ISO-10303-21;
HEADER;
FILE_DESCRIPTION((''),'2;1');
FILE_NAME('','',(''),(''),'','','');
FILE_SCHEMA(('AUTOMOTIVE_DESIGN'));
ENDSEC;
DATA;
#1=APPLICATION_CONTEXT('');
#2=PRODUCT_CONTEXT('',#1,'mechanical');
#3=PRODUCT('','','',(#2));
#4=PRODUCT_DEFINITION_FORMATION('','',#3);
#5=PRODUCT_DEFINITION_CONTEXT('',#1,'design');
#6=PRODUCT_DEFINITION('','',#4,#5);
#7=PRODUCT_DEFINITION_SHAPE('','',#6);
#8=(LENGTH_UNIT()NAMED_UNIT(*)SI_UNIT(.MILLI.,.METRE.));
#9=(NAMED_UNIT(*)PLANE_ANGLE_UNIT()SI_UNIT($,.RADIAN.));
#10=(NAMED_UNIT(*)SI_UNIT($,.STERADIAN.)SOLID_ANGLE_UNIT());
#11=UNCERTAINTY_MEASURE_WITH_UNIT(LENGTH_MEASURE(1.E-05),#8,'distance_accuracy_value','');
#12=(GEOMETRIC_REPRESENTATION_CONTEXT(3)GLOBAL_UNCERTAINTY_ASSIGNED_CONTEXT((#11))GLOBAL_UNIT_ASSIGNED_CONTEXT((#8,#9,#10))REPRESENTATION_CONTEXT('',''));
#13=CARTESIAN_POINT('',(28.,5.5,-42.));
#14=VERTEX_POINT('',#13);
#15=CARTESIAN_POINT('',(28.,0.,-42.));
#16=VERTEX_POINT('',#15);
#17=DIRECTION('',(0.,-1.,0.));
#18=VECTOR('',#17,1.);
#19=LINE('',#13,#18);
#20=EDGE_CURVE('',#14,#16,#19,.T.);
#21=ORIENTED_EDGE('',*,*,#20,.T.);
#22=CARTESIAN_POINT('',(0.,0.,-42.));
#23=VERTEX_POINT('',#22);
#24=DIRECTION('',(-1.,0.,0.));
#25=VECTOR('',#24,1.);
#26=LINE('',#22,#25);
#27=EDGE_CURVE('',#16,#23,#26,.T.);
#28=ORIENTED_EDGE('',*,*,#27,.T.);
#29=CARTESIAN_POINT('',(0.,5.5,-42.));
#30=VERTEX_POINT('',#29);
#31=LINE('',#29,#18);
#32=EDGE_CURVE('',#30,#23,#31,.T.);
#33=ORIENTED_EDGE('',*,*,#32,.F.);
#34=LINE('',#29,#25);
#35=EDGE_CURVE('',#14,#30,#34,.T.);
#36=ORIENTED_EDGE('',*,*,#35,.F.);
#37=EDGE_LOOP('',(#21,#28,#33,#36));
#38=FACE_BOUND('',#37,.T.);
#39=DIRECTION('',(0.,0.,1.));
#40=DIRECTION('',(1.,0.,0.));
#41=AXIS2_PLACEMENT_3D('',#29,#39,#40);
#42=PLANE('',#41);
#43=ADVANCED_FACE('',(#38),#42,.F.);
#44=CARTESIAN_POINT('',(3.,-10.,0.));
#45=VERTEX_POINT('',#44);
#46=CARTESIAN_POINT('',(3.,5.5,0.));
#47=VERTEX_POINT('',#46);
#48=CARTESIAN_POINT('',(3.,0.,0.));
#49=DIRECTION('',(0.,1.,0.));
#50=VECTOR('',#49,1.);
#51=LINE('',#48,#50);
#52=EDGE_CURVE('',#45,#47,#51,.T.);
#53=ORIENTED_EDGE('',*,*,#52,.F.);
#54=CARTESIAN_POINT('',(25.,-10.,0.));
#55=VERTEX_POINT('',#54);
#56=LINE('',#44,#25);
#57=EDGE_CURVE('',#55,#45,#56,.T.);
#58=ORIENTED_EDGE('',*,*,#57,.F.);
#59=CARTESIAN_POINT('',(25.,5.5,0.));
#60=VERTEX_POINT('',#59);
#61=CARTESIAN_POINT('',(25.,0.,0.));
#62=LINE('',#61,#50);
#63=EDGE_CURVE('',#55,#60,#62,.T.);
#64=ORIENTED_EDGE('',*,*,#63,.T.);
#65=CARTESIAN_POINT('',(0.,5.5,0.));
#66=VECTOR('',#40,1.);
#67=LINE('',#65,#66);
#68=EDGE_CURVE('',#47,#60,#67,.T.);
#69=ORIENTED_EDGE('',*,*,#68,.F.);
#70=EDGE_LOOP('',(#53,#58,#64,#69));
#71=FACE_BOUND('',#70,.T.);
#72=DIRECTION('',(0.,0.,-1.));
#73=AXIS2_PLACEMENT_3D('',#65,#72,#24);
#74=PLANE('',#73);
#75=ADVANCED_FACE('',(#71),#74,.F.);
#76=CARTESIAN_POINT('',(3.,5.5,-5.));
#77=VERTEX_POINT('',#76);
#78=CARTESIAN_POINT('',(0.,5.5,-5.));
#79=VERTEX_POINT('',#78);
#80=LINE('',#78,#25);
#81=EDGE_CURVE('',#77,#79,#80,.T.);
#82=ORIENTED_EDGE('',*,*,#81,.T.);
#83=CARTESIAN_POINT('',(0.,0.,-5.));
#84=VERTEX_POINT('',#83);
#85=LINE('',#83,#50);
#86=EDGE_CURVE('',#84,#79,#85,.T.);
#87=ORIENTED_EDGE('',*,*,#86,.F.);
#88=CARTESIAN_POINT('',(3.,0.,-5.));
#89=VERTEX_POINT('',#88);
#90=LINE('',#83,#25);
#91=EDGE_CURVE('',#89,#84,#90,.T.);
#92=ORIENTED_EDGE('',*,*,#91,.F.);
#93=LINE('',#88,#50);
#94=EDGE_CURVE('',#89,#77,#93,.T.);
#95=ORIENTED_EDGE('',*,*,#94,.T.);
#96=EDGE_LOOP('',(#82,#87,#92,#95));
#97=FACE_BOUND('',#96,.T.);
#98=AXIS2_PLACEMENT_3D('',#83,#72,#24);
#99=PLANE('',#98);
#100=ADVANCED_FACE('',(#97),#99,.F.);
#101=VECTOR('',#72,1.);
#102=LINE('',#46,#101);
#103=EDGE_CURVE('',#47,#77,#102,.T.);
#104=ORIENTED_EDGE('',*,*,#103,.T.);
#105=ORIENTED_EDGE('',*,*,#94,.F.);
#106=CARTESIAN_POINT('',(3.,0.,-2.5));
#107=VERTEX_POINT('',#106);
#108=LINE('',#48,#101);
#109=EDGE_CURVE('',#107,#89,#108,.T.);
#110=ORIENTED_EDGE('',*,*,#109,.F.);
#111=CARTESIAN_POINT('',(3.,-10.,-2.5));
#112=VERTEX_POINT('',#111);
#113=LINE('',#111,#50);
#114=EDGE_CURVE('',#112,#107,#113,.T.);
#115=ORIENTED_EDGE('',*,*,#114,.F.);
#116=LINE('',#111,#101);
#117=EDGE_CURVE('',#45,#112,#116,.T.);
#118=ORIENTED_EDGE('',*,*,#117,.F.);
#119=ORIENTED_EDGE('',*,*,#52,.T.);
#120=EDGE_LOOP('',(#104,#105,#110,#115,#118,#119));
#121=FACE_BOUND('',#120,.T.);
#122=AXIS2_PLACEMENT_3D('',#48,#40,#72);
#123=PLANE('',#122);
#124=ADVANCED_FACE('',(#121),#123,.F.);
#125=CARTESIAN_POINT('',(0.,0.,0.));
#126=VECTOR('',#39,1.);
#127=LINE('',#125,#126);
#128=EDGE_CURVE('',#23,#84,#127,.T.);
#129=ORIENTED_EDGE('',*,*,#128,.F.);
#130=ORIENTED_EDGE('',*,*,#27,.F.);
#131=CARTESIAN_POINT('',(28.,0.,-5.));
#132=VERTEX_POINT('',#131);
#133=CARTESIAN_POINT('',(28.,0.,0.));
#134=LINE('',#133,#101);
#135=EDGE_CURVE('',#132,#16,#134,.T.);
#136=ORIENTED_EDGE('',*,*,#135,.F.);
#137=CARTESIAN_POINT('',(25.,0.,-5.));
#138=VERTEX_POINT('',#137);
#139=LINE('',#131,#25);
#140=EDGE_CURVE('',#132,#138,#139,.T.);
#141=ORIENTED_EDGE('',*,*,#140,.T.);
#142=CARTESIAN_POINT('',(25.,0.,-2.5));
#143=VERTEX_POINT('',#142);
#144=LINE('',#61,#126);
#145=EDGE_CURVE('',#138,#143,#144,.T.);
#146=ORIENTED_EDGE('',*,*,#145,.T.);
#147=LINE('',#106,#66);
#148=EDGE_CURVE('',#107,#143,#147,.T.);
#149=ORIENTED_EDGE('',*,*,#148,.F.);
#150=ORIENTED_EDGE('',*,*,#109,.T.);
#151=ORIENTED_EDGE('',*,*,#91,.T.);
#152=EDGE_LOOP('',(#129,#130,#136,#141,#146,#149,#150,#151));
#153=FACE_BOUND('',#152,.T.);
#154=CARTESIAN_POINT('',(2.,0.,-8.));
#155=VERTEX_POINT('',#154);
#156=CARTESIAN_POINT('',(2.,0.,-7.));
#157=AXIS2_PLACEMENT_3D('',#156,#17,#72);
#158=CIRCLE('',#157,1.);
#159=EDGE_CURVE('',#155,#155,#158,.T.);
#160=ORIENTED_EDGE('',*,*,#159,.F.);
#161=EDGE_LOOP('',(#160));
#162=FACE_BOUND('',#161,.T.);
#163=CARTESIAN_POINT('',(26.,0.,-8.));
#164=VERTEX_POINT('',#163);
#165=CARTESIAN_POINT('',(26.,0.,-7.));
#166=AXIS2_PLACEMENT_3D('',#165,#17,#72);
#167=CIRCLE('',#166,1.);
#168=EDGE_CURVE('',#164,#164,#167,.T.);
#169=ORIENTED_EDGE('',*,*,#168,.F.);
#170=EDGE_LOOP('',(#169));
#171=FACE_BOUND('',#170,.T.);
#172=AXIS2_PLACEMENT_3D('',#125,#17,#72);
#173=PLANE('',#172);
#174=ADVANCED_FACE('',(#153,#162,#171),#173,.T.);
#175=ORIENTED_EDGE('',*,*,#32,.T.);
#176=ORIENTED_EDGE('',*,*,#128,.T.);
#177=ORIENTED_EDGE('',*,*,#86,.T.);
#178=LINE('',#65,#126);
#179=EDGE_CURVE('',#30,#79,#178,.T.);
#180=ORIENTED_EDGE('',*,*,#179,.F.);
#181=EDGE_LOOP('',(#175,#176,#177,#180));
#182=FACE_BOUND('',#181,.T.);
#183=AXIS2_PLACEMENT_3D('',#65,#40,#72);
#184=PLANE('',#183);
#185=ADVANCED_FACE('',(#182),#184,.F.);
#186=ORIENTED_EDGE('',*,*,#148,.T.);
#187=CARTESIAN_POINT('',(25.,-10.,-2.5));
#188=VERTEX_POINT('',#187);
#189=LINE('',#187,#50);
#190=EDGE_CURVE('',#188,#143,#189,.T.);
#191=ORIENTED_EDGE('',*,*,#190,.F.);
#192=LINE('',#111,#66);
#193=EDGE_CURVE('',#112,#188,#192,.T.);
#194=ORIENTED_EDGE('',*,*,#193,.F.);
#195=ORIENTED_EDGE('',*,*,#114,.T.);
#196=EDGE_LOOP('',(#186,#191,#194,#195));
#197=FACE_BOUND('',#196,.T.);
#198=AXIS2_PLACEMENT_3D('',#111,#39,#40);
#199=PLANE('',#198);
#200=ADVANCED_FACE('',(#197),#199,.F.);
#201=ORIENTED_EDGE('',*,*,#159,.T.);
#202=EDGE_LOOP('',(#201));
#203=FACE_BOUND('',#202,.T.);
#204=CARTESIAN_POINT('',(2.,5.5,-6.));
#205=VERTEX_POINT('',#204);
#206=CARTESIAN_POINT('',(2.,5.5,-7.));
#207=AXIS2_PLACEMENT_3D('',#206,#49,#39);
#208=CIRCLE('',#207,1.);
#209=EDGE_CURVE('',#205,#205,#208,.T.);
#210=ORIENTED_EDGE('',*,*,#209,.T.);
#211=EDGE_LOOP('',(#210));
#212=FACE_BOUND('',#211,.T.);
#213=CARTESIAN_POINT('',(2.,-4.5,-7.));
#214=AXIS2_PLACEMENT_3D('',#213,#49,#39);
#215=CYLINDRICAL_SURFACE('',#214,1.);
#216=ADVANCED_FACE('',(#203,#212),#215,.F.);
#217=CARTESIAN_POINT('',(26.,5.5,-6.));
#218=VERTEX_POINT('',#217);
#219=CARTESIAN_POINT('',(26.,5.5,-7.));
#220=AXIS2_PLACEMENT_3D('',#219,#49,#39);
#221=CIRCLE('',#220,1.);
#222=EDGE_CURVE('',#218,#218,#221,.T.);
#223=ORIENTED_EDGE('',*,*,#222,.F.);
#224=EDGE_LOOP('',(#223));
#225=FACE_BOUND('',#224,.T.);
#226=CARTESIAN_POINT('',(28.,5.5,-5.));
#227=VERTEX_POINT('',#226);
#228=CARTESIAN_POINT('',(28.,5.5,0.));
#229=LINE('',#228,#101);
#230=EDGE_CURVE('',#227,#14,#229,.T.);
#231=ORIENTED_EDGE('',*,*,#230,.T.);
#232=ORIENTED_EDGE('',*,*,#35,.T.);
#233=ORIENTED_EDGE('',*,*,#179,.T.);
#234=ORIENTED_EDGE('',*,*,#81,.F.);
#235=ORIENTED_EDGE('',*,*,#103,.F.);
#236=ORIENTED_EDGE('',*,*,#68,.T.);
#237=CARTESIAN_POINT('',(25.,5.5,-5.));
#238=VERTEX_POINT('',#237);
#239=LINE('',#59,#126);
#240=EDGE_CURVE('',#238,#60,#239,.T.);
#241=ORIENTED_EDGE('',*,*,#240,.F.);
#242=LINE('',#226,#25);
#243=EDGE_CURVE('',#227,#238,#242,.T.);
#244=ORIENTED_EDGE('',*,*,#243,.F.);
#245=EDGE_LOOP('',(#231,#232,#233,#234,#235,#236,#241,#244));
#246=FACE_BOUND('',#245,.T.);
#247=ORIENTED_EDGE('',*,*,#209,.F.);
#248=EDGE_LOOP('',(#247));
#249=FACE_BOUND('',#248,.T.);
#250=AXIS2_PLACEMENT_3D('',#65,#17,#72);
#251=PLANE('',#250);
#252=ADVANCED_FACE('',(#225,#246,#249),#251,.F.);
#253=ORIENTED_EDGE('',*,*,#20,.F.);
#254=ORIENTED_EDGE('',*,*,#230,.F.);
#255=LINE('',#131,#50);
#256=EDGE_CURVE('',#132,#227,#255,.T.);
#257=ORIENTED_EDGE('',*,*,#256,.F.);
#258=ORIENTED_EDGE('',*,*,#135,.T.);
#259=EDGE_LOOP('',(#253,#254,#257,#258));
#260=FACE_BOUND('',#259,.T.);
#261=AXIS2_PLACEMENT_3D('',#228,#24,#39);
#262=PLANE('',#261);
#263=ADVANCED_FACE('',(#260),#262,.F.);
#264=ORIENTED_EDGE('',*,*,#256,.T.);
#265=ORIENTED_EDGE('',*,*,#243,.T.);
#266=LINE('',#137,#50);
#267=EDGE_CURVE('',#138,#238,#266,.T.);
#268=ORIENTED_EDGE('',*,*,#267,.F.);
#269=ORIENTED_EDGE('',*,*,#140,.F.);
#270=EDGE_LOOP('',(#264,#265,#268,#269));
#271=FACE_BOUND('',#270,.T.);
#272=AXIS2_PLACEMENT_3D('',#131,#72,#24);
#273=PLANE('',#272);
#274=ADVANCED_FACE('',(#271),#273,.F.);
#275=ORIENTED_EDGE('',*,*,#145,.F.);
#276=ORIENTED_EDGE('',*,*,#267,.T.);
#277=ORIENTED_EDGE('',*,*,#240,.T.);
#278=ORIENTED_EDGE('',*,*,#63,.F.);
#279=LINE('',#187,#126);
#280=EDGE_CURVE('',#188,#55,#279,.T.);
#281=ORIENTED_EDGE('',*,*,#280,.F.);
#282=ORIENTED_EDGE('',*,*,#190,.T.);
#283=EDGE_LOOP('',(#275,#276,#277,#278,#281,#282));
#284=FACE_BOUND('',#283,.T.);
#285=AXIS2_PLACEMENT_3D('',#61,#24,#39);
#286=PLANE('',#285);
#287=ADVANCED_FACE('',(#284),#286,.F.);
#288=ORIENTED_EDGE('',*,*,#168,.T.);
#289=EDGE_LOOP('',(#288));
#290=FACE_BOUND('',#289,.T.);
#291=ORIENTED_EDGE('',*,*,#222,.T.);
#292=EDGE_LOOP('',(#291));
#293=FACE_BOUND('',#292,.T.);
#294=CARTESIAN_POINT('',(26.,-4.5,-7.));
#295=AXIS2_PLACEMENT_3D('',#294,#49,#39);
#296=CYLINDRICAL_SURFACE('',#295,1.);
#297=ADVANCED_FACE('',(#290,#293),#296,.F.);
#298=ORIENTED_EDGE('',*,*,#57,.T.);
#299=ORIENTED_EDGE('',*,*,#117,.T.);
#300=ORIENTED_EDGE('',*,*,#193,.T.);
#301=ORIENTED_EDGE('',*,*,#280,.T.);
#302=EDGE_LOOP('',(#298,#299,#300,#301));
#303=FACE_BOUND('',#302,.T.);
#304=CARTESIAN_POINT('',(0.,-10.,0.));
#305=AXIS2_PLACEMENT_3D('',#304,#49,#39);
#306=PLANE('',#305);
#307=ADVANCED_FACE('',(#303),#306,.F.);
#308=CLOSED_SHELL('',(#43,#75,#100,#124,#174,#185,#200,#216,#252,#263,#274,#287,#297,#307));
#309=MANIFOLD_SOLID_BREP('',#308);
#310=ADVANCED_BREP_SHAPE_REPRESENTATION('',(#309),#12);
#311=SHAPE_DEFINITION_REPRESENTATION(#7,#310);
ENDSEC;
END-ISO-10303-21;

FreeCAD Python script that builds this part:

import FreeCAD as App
import Part
import Sketcher
Q = App.Units.Quantity


def add_polygon(sketch, points):
    """Adds a closed chain of lines whose ends are joined by coincident constraints."""
    first, n = sketch.GeometryCount, len(points)
    for a, b in zip(points, points[1:] + points[:1]):
        sketch.addGeometry(Part.LineSegment(App.Vector(*a, 0), App.Vector(*b, 0)), False)
    for i in range(n):
        sketch.addConstraint(Sketcher.Constraint("Coincident", first + i, 2, first + (i + 1) % n, 1))

doc = App.newDocument("Part")
body = doc.addObject("PartDesign::Body", "Body")

# Sketch on XZ plane
sketch1 = doc.addObject("Sketcher::SketchObject", "Sketch")
body.addObject(sketch1)
sketch1.AttachmentSupport = (doc.XZ_Plane, [""])
sketch1.MapMode = "FlatFace"
add_polygon(sketch1, [(0, -42), (0, 0), (28, 0), (28, -42)])  # lines 0-3
sketch1.addConstraint(Sketcher.Constraint("Vertical", 0))
sketch1.addConstraint(Sketcher.Constraint("Horizontal", 1))
sketch1.addConstraint(Sketcher.Constraint("Vertical", 2))
sketch1.addConstraint(Sketcher.Constraint("Horizontal", 3))
sketch1.addConstraint(Sketcher.Constraint("Coincident", 0, 2, -1, 1))
sketch1.addConstraint(Sketcher.Constraint("DistanceX", 1, 1, 1, 2, Q("28 mm")))
sketch1.addConstraint(Sketcher.Constraint("DistanceY", 0, 1, 0, 2, Q("42 mm")))
pad1 = doc.addObject("PartDesign::Pad", "Pad")
body.addObject(pad1)
pad1.Profile = sketch1
pad1.Length = 5.5
pad1.Reversed = True

# Sketch on XZ plane
sketch2 = doc.addObject("Sketcher::SketchObject", "Sketch001")
body.addObject(sketch2)
sketch2.AttachmentSupport = (doc.XZ_Plane, [""])
sketch2.MapMode = "FlatFace"
sketch2.AttachmentOffset = App.Placement(App.Vector(0, 0, -5.5), App.Rotation())
add_polygon(sketch2, [(0, -5), (0, 0), (3, 0), (3, -5)])  # lines 0-3
add_polygon(sketch2, [(25, -5), (25, 0), (28, 0), (28, -5)])  # lines 4-7
sketch2.addConstraint(Sketcher.Constraint("Vertical", 0))
sketch2.addConstraint(Sketcher.Constraint("Horizontal", 1))
sketch2.addConstraint(Sketcher.Constraint("Vertical", 2))
sketch2.addConstraint(Sketcher.Constraint("Horizontal", 3))
sketch2.addConstraint(Sketcher.Constraint("Vertical", 4))
sketch2.addConstraint(Sketcher.Constraint("Horizontal", 5))
sketch2.addConstraint(Sketcher.Constraint("Vertical", 6))
sketch2.addConstraint(Sketcher.Constraint("Horizontal", 7))
sketch2.addConstraint(Sketcher.Constraint("Coincident", 0, 2, -1, 1))
sketch2.addConstraint(Sketcher.Constraint("PointOnObject", 4, 2, -1))
sketch2.addConstraint(Sketcher.Constraint("Horizontal", 3, 2, 6, 2))
sketch2.addConstraint(Sketcher.Constraint("Equal", 3, 5))
sketch2.addConstraint(Sketcher.Constraint("DistanceX", 1, 1, 1, 2, Q("3 mm")))
sketch2.addConstraint(Sketcher.Constraint("DistanceY", 0, 1, 0, 2, Q("5 mm")))
sketch2.addConstraint(Sketcher.Constraint("DistanceX", -1, 1, 4, 2, Q("25 mm")))
pocket1 = doc.addObject("PartDesign::Pocket", "Pocket")
body.addObject(pocket1)
pocket1.Profile = sketch2
pocket1.Length = 5.5
pocket1.Reversed = True

# Sketch on XZ plane
sketch3 = doc.addObject("Sketcher::SketchObject", "Sketch002")
body.addObject(sketch3)
sketch3.AttachmentSupport = (doc.XZ_Plane, [""])
sketch3.MapMode = "FlatFace"
add_polygon(sketch3, [(3, 0), (3, -2.5), (25, -2.5), (25, 0)])  # lines 0-3
sketch3.addConstraint(Sketcher.Constraint("Vertical", 0))
sketch3.addConstraint(Sketcher.Constraint("Horizontal", 1))
sketch3.addConstraint(Sketcher.Constraint("Vertical", 2))
sketch3.addConstraint(Sketcher.Constraint("Horizontal", 3))
sketch3.addConstraint(Sketcher.Constraint("PointOnObject", 2, 2, -1))
sketch3.addConstraint(Sketcher.Constraint("DistanceX", 1, 1, 1, 2, Q("22 mm")))
sketch3.addConstraint(Sketcher.Constraint("DistanceY", 0, 2, 0, 1, Q("2.5 mm")))
sketch3.addConstraint(Sketcher.Constraint("DistanceX", -1, 1, 0, 2, Q("3 mm")))
pad2 = doc.addObject("PartDesign::Pad", "Pad001")
body.addObject(pad2)
pad2.Profile = sketch3
pad2.Length = 10

# Sketch on XZ plane
sketch4 = doc.addObject("Sketcher::SketchObject", "Sketch003")
body.addObject(sketch4)
sketch4.AttachmentSupport = (doc.XZ_Plane, [""])
sketch4.MapMode = "FlatFace"
sketch4.AttachmentOffset = App.Placement(App.Vector(0, 0, -5.5), App.Rotation())
sketch4.addGeometry(Part.Circle(App.Vector(2, -7, 0), App.Vector(0, 0, 1), 1), False)
sketch4.addGeometry(Part.Circle(App.Vector(26, -7, 0), App.Vector(0, 0, 1), 1), False)
sketch4.addConstraint(Sketcher.Constraint("Equal", 0, 1))
sketch4.addConstraint(Sketcher.Constraint("Horizontal", 0, 3, 1, 3))
sketch4.addConstraint(Sketcher.Constraint("Diameter", 0, Q("2 mm")))
sketch4.addConstraint(Sketcher.Constraint("DistanceX", -1, 1, 0, 3, Q("2 mm")))
sketch4.addConstraint(Sketcher.Constraint("DistanceY", 0, 3, -1, 1, Q("7 mm")))
sketch4.addConstraint(Sketcher.Constraint("DistanceX", -1, 1, 1, 3, Q("26 mm")))
pocket2 = doc.addObject("PartDesign::Pocket", "Pocket001")
body.addObject(pocket2)
pocket2.Profile = sketch4
pocket2.Length = 10
pocket2.Reversed = True

doc.recompute()
